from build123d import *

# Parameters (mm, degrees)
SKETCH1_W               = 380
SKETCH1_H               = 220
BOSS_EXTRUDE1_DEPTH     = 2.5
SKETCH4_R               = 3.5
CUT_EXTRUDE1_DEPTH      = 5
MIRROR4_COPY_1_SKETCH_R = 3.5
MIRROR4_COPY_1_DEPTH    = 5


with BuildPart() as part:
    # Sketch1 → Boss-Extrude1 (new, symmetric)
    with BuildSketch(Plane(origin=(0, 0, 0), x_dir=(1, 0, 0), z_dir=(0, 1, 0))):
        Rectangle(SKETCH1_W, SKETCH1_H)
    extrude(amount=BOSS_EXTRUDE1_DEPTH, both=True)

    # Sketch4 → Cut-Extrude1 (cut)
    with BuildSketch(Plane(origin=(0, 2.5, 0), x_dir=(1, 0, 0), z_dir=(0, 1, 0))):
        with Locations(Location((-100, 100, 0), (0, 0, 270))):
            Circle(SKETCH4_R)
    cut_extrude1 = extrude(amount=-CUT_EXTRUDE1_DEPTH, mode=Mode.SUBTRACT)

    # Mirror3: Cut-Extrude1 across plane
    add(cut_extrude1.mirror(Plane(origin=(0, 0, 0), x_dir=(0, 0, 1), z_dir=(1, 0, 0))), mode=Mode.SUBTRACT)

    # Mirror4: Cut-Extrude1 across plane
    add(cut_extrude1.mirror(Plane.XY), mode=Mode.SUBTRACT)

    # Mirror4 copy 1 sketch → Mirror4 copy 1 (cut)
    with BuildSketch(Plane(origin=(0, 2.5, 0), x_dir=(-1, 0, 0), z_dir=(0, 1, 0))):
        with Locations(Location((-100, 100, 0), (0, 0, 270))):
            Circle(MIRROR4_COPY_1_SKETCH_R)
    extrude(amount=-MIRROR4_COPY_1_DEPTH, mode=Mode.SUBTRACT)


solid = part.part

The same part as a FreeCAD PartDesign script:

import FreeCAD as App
import Part
import Sketcher
Q = App.Units.Quantity

doc = App.newDocument("Part")
body = doc.addObject("PartDesign::Body", "Body")

sketch1 = doc.addObject("Sketcher::SketchObject", "Sketch")
body.addObject(sketch1)
sketch1.AttachmentSupport = (doc.XZ_Plane, [""])
sketch1.MapMode = "FlatFace"
sketch1.addGeometry(Part.LineSegment(App.Vector(-190, -110, 0), App.Vector(-190, 110, 0)), False)
sketch1.addGeometry(Part.LineSegment(App.Vector(-190, 110, 0), App.Vector(190, 110, 0)), False)
sketch1.addGeometry(Part.LineSegment(App.Vector(190, 110, 0), App.Vector(190, -110, 0)), False)
sketch1.addGeometry(Part.LineSegment(App.Vector(190, -110, 0), App.Vector(-190, -110, 0)), False)
sketch1.addConstraint(Sketcher.Constraint("Coincident", 0, 2, 1, 1))
sketch1.addConstraint(Sketcher.Constraint("Coincident", 1, 2, 2, 1))
sketch1.addConstraint(Sketcher.Constraint("Coincident", 2, 2, 3, 1))
sketch1.addConstraint(Sketcher.Constraint("Coincident", 3, 2, 0, 1))
sketch1.addConstraint(Sketcher.Constraint("Vertical", 0))
sketch1.addConstraint(Sketcher.Constraint("Horizontal", 1))
sketch1.addConstraint(Sketcher.Constraint("Vertical", 2))
sketch1.addConstraint(Sketcher.Constraint("Horizontal", 3))
sketch1.addConstraint(Sketcher.Constraint("Symmetric", 0, 2, 2, 2, -1, 1))
sketch1.addConstraint(Sketcher.Constraint("DistanceX", 1, 1, 1, 2, Q("380 mm")))
sketch1.addConstraint(Sketcher.Constraint("DistanceY", 0, 1, 0, 2, Q("220 mm")))
pad1 = doc.addObject("PartDesign::Pad", "Pad")
body.addObject(pad1)
pad1.Profile = sketch1
pad1.Length = 5
pad1.Midplane = True

sketch2 = doc.addObject("Sketcher::SketchObject", "Sketch001")
body.addObject(sketch2)
sketch2.AttachmentSupport = (doc.XZ_Plane, [""])
sketch2.MapMode = "FlatFace"
sketch2.AttachmentOffset = App.Placement(App.Vector(0, 0, -2.5), App.Rotation())
sketch2.addGeometry(Part.Circle(App.Vector(-100, -100, 0), App.Vector(0, 0, 1), 3.5), False)
sketch2.addConstraint(Sketcher.Constraint("Diameter", 0, Q("7 mm")))
sketch2.addConstraint(Sketcher.Constraint("DistanceX", 0, 3, -1, 1, Q("100 mm")))
sketch2.addConstraint(Sketcher.Constraint("DistanceY", 0, 3, -1, 1, Q("100 mm")))
pocket1 = doc.addObject("PartDesign::Pocket", "Pocket")
body.addObject(pocket1)
pocket1.Profile = sketch2
pocket1.Length = 5
pocket1.Reversed = True
doc.recompute()

mirrored = doc.addObject("PartDesign::Mirrored", "Mirrored")
body.addObject(mirrored)
mirrored.Originals = [pocket1]
mirrored.MirrorPlane = (doc.YZ_Plane, [""])
body.Tip = mirrored
doc.recompute()

mirrored2 = doc.addObject("PartDesign::Mirrored", "Mirrored001")
body.addObject(mirrored2)
mirrored2.Originals = [pocket1]
mirrored2.MirrorPlane = (doc.XY_Plane, [""])
body.Tip = mirrored2

sketch3 = doc.addObject("Sketcher::SketchObject", "Sketch002")
body.addObject(sketch3)
sketch3.AttachmentSupport = (doc.XZ_Plane, [""])
sketch3.MapMode = "FlatFace"
sketch3.AttachmentOffset = App.Placement(App.Vector(0, 0, -2.5), App.Rotation())
sketch3.addGeometry(Part.Circle(App.Vector(100, 100, 0), App.Vector(0, 0, 1), 3.5), False)
sketch3.addConstraint(Sketcher.Constraint("Diameter", 0, Q("7 mm")))
sketch3.addConstraint(Sketcher.Constraint("DistanceX", -1, 1, 0, 3, Q("100 mm")))
sketch3.addConstraint(Sketcher.Constraint("DistanceY", -1, 1, 0, 3, Q("100 mm")))
pocket2 = doc.addObject("PartDesign::Pocket", "Pocket001")
body.addObject(pocket2)
pocket2.Profile = sketch3
pocket2.Length = 5
pocket2.Reversed = True

doc.recompute()
